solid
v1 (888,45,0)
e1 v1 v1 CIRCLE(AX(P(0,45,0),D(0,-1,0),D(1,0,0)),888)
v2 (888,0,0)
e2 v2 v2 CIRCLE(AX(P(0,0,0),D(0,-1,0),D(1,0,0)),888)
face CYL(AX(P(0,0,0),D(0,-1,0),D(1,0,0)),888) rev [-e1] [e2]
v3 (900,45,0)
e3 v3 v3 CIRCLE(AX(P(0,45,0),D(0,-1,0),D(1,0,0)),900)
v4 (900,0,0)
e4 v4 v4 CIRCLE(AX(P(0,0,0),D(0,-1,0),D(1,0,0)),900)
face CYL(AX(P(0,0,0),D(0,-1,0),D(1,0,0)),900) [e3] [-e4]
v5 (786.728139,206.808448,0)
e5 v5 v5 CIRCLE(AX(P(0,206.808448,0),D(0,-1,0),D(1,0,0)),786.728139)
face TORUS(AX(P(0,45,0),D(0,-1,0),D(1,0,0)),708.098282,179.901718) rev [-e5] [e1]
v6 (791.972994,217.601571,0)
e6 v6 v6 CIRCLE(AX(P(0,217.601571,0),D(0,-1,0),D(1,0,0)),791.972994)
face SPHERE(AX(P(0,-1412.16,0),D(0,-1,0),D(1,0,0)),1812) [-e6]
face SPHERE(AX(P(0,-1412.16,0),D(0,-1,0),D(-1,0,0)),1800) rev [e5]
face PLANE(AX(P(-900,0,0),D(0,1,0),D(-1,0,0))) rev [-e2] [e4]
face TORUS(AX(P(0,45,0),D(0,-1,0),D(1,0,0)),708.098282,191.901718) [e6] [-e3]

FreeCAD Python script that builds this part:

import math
import FreeCAD as App
import Part
import Sketcher

V = App.Vector
Q = App.Units.Quantity

doc = App.newDocument("Part")
body = doc.addObject("PartDesign::Body", "Body")

# Sketch on XY plane
sketch1 = body.newObject("Sketcher::SketchObject", "Sketch")
sketch1.AttachmentSupport = (doc.getObject("XY_Plane"), [""])
sketch1.MapMode = "FlatFace"
sketch1.addGeometry([
    Part.LineSegment(V(-900, 45, 0), V(-900, 0, 0)),  # 0
    Part.LineSegment(V(-900, 0, 0), V(-888, 0, 0)),  # 1
    Part.LineSegment(V(-888, 0, 0), V(-888, 45, 0)),  # 2
    Part.ArcOfCircle(Part.Circle(V(-708, 45, 0), V(0, 0, 1), 180), math.radians(116), math.radians(180)),  # 3
    Part.ArcOfCircle(Part.Circle(V(0, -1412, 0), V(0, 0, 1), 1800), math.radians(90), math.radians(116)),  # 4
    Part.LineSegment(V(0, 388, 0), V(0, 400, 0)),  # 5
    Part.ArcOfCircle(Part.Circle(V(0, -1412, 0), V(0, 0, 1), 1812), math.radians(90), math.radians(116)),  # 6
    Part.ArcOfCircle(Part.Circle(V(-708, 45, 0), V(0, 0, 1), 192), math.radians(116), math.radians(180)),  # 7
], False)
sketch1.addConstraint([
    Sketcher.Constraint("Coincident", 0, 2, 1, 1),
    Sketcher.Constraint("Coincident", 1, 2, 2, 1),
    Sketcher.Constraint("Tangent", 2, 2, 3, 2),
    Sketcher.Constraint("Tangent", 3, 1, 4, 2),
    Sketcher.Constraint("Coincident", 4, 1, 5, 1),
    Sketcher.Constraint("Coincident", 5, 2, 6, 1),
    Sketcher.Constraint("Tangent", 6, 2, 7, 1),
    Sketcher.Constraint("Tangent", 7, 2, 0, 1),
    Sketcher.Constraint("Vertical", 0),
    Sketcher.Constraint("Horizontal", 1),
    Sketcher.Constraint("Vertical", 2),
    Sketcher.Constraint("Vertical", 5),
    Sketcher.Constraint("Coincident", 6, 3, 4, 3),
    Sketcher.Constraint("Coincident", 7, 3, 3, 3),
    Sketcher.Constraint("PointOnObject", 4, 3, -2),
    Sketcher.Constraint("PointOnObject", 0, 2, -1),
    Sketcher.Constraint("PointOnObject", 5, 2, -2),
    Sketcher.Constraint("Radius", 4, Q("1800 mm")),
    Sketcher.Constraint("Radius", 6, Q("1812 mm")),
    Sketcher.Constraint("DistanceY", 0, 2, 0, 1, Q("45 mm")),
    Sketcher.Constraint("DistanceX", 0, 2, -1, 1, Q("900 mm")),
    Sketcher.Constraint("DistanceY", 4, 3, -1, 1, Q("1412.16 mm")),
])
revolution = body.newObject("PartDesign::Revolution", "Revolution")
revolution.Profile = sketch1
revolution.ReferenceAxis = (sketch1, ["V_Axis"])
revolution.Angle = 360

doc.recompute()
